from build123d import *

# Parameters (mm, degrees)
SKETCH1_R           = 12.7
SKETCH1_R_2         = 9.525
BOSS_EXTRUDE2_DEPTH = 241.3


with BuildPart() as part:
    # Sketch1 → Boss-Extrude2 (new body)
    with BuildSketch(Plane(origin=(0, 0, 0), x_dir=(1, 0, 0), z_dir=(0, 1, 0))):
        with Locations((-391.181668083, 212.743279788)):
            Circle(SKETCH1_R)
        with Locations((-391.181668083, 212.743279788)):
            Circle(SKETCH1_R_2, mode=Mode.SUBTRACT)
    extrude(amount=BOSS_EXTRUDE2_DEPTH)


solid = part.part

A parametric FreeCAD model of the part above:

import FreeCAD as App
import Part
import Sketcher
Q = App.Units.Quantity

doc = App.newDocument("Part")
body = doc.addObject("PartDesign::Body", "Body")

sketch1 = doc.addObject("Sketcher::SketchObject", "Sketch")
body.addObject(sketch1)
sketch1.AttachmentSupport = (doc.XZ_Plane, [""])
sketch1.MapMode = "FlatFace"
sketch1.addGeometry([
    Part.Circle(App.Vector(-391.181668, -212.74328, 0), App.Vector(0, 0, 1), 12.7),
    Part.Circle(App.Vector(-391.181668, -212.74328, 0), App.Vector(0, 0, 1), 9.525),
], False)
sketch1.addConstraint([
    Sketcher.Constraint("Coincident", 1, 3, 0, 3),
    Sketcher.Constraint("Diameter", 0, Q("1 in")),
    Sketcher.Constraint("Diameter", 1, Q("0.75 in")),
    Sketcher.Constraint("DistanceX", 0, 3, -1, 1, Q("391.181668 mm")),
    Sketcher.Constraint("DistanceY", 0, 3, -1, 1, Q("212.74328 mm")),
])
pad1 = doc.addObject("PartDesign::Pad", "Pad")
body.addObject(pad1)
pad1.Profile = sketch1
pad1.Length = Q("9.5 in")
pad1.Reversed = True

doc.recompute()
